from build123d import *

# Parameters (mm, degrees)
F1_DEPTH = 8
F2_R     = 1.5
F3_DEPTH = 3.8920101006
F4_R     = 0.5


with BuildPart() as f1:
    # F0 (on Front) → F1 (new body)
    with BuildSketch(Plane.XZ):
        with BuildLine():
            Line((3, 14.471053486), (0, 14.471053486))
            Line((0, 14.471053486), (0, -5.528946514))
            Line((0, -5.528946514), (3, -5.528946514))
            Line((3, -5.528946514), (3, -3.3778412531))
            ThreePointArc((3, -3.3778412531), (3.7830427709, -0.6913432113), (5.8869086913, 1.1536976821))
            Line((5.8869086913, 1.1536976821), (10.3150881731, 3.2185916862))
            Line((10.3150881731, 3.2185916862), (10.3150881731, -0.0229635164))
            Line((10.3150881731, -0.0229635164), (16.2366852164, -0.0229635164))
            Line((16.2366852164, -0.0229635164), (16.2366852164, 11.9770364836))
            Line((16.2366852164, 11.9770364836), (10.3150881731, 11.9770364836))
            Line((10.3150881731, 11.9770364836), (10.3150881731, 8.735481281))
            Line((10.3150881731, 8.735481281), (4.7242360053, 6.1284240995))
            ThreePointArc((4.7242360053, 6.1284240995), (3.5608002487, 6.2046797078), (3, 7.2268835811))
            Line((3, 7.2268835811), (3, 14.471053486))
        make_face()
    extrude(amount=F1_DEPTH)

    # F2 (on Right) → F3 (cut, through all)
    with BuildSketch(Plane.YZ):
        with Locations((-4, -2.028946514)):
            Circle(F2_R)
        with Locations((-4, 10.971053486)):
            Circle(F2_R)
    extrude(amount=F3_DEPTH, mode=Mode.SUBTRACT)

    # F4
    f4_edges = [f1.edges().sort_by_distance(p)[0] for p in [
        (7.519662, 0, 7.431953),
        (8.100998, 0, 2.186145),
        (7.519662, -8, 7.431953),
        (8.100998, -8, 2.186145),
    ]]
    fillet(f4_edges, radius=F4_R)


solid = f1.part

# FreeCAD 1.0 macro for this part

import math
import FreeCAD as App
import Part
import Sketcher

V = App.Vector
Q = App.Units.Quantity


def edges_at(feature, points):
    """Names of the edges that pass closest to the given points."""
    edges = feature.Shape.Edges
    near = lambda p: min(range(len(edges)), key=lambda i: edges[i].distToShape(Part.Vertex(*p))[0])
    return sorted({f"Edge{near(p) + 1}" for p in points})

doc = App.newDocument("Part")
body = doc.addObject("PartDesign::Body", "Body")

sketch1 = body.newObject("Sketcher::SketchObject", "Sketch")
sketch1.AttachmentSupport = (doc.getObject("XZ_Plane"), [""])
sketch1.MapMode = "FlatFace"
sketch1.addGeometry([
    Part.LineSegment(V(3, 14.5, 0), V(0, 14.5, 0)),
    Part.LineSegment(V(0, 14.5, 0), V(0, -5.5, 0)),
    Part.LineSegment(V(0, -5.5, 0), V(3, -5.5, 0)),
    Part.LineSegment(V(3, -5.5, 0), V(3, -3.4, 0)),
    Part.ArcOfCircle(Part.Circle(V(8, -3.4, 0), V(0, 0, 1), 5), math.radians(115), math.radians(180)),
    Part.LineSegment(V(5.9, 1.2, 0), V(10.3, 3.2, 0)),
    Part.LineSegment(V(10.3, 3.2, 0), V(10.3, 0, 0)),
    Part.LineSegment(V(10.3, 0, 0), V(16.2, 0, 0)),
    Part.LineSegment(V(16.2, 0, 0), V(16.2, 12, 0)),
    Part.LineSegment(V(16.2, 12, 0), V(10.3, 12, 0)),
    Part.LineSegment(V(10.3, 12, 0), V(10.3, 8.7, 0)),
    Part.LineSegment(V(10.3, 8.7, 0), V(4.7, 6.1, 0)),
    Part.ArcOfCircle(Part.Circle(V(4.2, 7.2, 0), V(0, 0, 1), 1.2), math.radians(180), math.radians(295)),
    Part.LineSegment(V(3, 7.2, 0), V(3, 14.5, 0)),
], False)
sketch1.addConstraint([
    Sketcher.Constraint("Coincident", 0, 2, 1, 1),
    Sketcher.Constraint("Coincident", 1, 2, 2, 1),
    Sketcher.Constraint("Coincident", 2, 2, 3, 1),
    Sketcher.Constraint("Tangent", 3, 2, 4, 2),
    Sketcher.Constraint("Tangent", 4, 1, 5, 1),
    Sketcher.Constraint("Coincident", 5, 2, 6, 1),
    Sketcher.Constraint("Coincident", 6, 2, 7, 1),
    Sketcher.Constraint("Coincident", 7, 2, 8, 1),
    Sketcher.Constraint("Coincident", 8, 2, 9, 1),
    Sketcher.Constraint("Coincident", 9, 2, 10, 1),
    Sketcher.Constraint("Coincident", 10, 2, 11, 1),
    Sketcher.Constraint("Tangent", 11, 2, 12, 2),
    Sketcher.Constraint("Tangent", 12, 1, 13, 1),
    Sketcher.Constraint("Coincident", 13, 2, 0, 1),
    Sketcher.Constraint("Horizontal", 0),
    Sketcher.Constraint("Vertical", 1),
    Sketcher.Constraint("Horizontal", 2),
    Sketcher.Constraint("Vertical", 3),
    Sketcher.Constraint("Vertical", 6),
    Sketcher.Constraint("Horizontal", 7),
    Sketcher.Constraint("Vertical", 8),
    Sketcher.Constraint("Horizontal", 9),
    Sketcher.Constraint("Vertical", 10),
    Sketcher.Constraint("Vertical", 13),
    Sketcher.Constraint("PointOnObject", 0, 2, -2),
    Sketcher.Constraint("Parallel", 5, 11),
    Sketcher.Constraint("Vertical", 6, 2, 9, 2),
    Sketcher.Constraint("Vertical", 3, 2, 12, 1),
    Sketcher.Constraint("Equal", 6, 10),
    Sketcher.Constraint("Radius", 4, Q("5 mm")),
    Sketcher.Constraint("DistanceX", 0, 2, 0, 1, Q("3 mm")),
    Sketcher.Constraint("DistanceY", 1, 2, 1, 1, Q("20 mm")),
    Sketcher.Constraint("DistanceY", 8, 1, 8, 2, Q("12 mm")),
    Sketcher.Constraint("Angle", 5, Q("25 deg")),
    Sketcher.Constraint("Radius", 12, Q("1.212016 mm")),
    Sketcher.Constraint("DistanceY", 13, 1, 13, 2, Q("7.24417 mm")),
    Sketcher.Constraint("DistanceX", 7, 1, 7, 2, Q("5.921597 mm")),
    Sketcher.Constraint("DistanceY", 3, 1, 3, 2, Q("2.151105 mm")),
    Sketcher.Constraint("DistanceY", 4, 3, -1, 1, Q("3.377841 mm")),
    Sketcher.Constraint("DistanceX", -1, 1, 5, 2, Q("10.315088 mm")),
])
pad1 = body.newObject("PartDesign::Pad", "Pad")
pad1.Profile = sketch1
pad1.Length = 8

sketch2 = body.newObject("Sketcher::SketchObject", "Sketch001")
sketch2.AttachmentSupport = (doc.getObject("YZ_Plane"), [""])
sketch2.MapMode = "FlatFace"
sketch2.addGeometry([
    Part.Circle(V(-4, -2, 0), V(0, 0, 1), 1.5),
    Part.Circle(V(-4, 11, 0), V(0, 0, 1), 1.5),
], False)
sketch2.addConstraint([
    Sketcher.Constraint("Equal", 0, 1),
    Sketcher.Constraint("Vertical", 0, 3, 1, 3),
    Sketcher.Constraint("Diameter", 0, Q("3 mm")),
    Sketcher.Constraint("DistanceX", 0, 3, -1, 1, Q("4 mm")),
    Sketcher.Constraint("DistanceY", 0, 3, 1, 3, Q("13 mm")),
    Sketcher.Constraint("DistanceY", 0, 3, -1, 1, Q("2.028947 mm")),
])
pocket1 = body.newObject("PartDesign::Pocket", "Pocket")
pocket1.Profile = sketch2
pocket1.Length = 3.89201
pocket1.Reversed = True
doc.recompute()

fillet = body.newObject("PartDesign::Fillet", "Fillet")
fillet.Base = (pocket1, edges_at(pocket1, [
    (7.52, 0, 7.432),
    (8.101, 0, 2.186),
    (7.52, -8, 7.432),
    (8.101, -8, 2.186),
]))
fillet.Radius = 0.5

doc.recompute()
